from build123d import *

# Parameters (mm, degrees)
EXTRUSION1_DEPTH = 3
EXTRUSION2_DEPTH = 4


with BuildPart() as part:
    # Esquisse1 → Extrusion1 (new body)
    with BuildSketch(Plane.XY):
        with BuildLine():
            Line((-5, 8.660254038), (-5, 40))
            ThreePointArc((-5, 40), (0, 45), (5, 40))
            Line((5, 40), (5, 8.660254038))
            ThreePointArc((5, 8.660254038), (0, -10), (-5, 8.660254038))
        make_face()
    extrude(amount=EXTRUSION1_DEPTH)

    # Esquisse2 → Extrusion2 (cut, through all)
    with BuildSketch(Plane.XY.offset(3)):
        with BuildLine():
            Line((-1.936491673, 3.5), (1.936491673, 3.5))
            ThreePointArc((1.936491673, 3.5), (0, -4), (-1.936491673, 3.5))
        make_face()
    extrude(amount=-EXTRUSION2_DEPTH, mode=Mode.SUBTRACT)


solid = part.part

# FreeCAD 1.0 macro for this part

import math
import FreeCAD as App
import Part
import Sketcher

V = App.Vector

doc = App.newDocument("Part")
params = doc.addObject("Spreadsheet::Sheet", "Params")
for row, (alias, value) in enumerate([
    ("sketch1_radius", "10 mm"),
    ("sketch1_radius2", "5 mm"),
    ("pad1_length", "3 mm"),
    ("sketch2_radius", "4 mm"),
], start=1):
    params.set(f"A{row}", alias)
    params.set(f"B{row}", "=" + value)
    params.setAlias(f"B{row}", alias)

body = doc.addObject("PartDesign::Body", "Body")

# Sketch on XY plane
sketch1 = body.newObject("Sketcher::SketchObject", "Sketch")
sketch1.AttachmentSupport = (doc.getObject("XY_Plane"), [""])
sketch1.MapMode = "FlatFace"
sketch1.addGeometry([
    Part.LineSegment(V(-5, 40, 0), V(-5, 8.660254, 0)),
    Part.ArcOfCircle(Part.Circle(V(0, 0, 0), V(0, 0, 1), 10), math.radians(120), math.radians(420)),
    Part.LineSegment(V(5, 8.660254, 0), V(5, 40, 0)),
    Part.ArcOfCircle(Part.Circle(V(0, 40, 0), V(0, 0, 1), 5), math.radians(0), math.radians(180)),
], False)
sketch1.addConstraint([
    Sketcher.Constraint("Coincident", 0, 2, 1, 1),
    Sketcher.Constraint("Coincident", 1, 2, 2, 1),
    Sketcher.Constraint("Tangent", 2, 2, 3, 1),
    Sketcher.Constraint("Tangent", 3, 2, 0, 1),
    Sketcher.Constraint("Vertical", 0),
    Sketcher.Constraint("Vertical", 2),
    Sketcher.Constraint("Coincident", 1, 3, -1, 1),
    Sketcher.Constraint("PointOnObject", 3, 3, -2),
    Sketcher.Constraint("Radius", 1, 10.0),
    Sketcher.Constraint("Radius", 3, 5.0),
    Sketcher.Constraint("DistanceY", -1, 1, 3, 3, 40.0),
])
sketch1.setExpression("Constraints[8]", "Params.sketch1_radius")
sketch1.setExpression("Constraints[9]", "Params.sketch1_radius2")
pad1 = body.newObject("PartDesign::Pad", "Pad")
pad1.Profile = sketch1
pad1.setExpression("Length", "Params.pad1_length")

# Sketch on XY plane
sketch2 = body.newObject("Sketcher::SketchObject", "Sketch001")
sketch2.AttachmentSupport = (doc.getObject("XY_Plane"), [""])
sketch2.MapMode = "FlatFace"
sketch2.AttachmentOffset = App.Placement(V(0, 0, 3), App.Rotation())
sketch2.addGeometry([
    Part.LineSegment(V(1.936492, 3.5, 0), V(-1.936492, 3.5, 0)),
    Part.ArcOfCircle(Part.Circle(V(0, 0, 0), V(0, 0, 1), 4), math.radians(118.955024), math.radians(421.044976)),
], False)
sketch2.addConstraint([
    Sketcher.Constraint("Coincident", 0, 1, 1, 2),
    Sketcher.Constraint("Coincident", 1, 1, 0, 2),
    Sketcher.Constraint("Horizontal", 0),
    Sketcher.Constraint("Coincident", 1, 3, -1, 1),
    Sketcher.Constraint("Radius", 1, 4.0),
    Sketcher.Constraint("DistanceY", -1, 1, 0, 1, 3.5),
])
sketch2.setExpression("Constraints[4]", "Params.sketch2_radius")
pocket1 = body.newObject("PartDesign::Pocket", "Pocket")
pocket1.Profile = sketch2
pocket1.Type = "ThroughAll"

doc.recompute()
